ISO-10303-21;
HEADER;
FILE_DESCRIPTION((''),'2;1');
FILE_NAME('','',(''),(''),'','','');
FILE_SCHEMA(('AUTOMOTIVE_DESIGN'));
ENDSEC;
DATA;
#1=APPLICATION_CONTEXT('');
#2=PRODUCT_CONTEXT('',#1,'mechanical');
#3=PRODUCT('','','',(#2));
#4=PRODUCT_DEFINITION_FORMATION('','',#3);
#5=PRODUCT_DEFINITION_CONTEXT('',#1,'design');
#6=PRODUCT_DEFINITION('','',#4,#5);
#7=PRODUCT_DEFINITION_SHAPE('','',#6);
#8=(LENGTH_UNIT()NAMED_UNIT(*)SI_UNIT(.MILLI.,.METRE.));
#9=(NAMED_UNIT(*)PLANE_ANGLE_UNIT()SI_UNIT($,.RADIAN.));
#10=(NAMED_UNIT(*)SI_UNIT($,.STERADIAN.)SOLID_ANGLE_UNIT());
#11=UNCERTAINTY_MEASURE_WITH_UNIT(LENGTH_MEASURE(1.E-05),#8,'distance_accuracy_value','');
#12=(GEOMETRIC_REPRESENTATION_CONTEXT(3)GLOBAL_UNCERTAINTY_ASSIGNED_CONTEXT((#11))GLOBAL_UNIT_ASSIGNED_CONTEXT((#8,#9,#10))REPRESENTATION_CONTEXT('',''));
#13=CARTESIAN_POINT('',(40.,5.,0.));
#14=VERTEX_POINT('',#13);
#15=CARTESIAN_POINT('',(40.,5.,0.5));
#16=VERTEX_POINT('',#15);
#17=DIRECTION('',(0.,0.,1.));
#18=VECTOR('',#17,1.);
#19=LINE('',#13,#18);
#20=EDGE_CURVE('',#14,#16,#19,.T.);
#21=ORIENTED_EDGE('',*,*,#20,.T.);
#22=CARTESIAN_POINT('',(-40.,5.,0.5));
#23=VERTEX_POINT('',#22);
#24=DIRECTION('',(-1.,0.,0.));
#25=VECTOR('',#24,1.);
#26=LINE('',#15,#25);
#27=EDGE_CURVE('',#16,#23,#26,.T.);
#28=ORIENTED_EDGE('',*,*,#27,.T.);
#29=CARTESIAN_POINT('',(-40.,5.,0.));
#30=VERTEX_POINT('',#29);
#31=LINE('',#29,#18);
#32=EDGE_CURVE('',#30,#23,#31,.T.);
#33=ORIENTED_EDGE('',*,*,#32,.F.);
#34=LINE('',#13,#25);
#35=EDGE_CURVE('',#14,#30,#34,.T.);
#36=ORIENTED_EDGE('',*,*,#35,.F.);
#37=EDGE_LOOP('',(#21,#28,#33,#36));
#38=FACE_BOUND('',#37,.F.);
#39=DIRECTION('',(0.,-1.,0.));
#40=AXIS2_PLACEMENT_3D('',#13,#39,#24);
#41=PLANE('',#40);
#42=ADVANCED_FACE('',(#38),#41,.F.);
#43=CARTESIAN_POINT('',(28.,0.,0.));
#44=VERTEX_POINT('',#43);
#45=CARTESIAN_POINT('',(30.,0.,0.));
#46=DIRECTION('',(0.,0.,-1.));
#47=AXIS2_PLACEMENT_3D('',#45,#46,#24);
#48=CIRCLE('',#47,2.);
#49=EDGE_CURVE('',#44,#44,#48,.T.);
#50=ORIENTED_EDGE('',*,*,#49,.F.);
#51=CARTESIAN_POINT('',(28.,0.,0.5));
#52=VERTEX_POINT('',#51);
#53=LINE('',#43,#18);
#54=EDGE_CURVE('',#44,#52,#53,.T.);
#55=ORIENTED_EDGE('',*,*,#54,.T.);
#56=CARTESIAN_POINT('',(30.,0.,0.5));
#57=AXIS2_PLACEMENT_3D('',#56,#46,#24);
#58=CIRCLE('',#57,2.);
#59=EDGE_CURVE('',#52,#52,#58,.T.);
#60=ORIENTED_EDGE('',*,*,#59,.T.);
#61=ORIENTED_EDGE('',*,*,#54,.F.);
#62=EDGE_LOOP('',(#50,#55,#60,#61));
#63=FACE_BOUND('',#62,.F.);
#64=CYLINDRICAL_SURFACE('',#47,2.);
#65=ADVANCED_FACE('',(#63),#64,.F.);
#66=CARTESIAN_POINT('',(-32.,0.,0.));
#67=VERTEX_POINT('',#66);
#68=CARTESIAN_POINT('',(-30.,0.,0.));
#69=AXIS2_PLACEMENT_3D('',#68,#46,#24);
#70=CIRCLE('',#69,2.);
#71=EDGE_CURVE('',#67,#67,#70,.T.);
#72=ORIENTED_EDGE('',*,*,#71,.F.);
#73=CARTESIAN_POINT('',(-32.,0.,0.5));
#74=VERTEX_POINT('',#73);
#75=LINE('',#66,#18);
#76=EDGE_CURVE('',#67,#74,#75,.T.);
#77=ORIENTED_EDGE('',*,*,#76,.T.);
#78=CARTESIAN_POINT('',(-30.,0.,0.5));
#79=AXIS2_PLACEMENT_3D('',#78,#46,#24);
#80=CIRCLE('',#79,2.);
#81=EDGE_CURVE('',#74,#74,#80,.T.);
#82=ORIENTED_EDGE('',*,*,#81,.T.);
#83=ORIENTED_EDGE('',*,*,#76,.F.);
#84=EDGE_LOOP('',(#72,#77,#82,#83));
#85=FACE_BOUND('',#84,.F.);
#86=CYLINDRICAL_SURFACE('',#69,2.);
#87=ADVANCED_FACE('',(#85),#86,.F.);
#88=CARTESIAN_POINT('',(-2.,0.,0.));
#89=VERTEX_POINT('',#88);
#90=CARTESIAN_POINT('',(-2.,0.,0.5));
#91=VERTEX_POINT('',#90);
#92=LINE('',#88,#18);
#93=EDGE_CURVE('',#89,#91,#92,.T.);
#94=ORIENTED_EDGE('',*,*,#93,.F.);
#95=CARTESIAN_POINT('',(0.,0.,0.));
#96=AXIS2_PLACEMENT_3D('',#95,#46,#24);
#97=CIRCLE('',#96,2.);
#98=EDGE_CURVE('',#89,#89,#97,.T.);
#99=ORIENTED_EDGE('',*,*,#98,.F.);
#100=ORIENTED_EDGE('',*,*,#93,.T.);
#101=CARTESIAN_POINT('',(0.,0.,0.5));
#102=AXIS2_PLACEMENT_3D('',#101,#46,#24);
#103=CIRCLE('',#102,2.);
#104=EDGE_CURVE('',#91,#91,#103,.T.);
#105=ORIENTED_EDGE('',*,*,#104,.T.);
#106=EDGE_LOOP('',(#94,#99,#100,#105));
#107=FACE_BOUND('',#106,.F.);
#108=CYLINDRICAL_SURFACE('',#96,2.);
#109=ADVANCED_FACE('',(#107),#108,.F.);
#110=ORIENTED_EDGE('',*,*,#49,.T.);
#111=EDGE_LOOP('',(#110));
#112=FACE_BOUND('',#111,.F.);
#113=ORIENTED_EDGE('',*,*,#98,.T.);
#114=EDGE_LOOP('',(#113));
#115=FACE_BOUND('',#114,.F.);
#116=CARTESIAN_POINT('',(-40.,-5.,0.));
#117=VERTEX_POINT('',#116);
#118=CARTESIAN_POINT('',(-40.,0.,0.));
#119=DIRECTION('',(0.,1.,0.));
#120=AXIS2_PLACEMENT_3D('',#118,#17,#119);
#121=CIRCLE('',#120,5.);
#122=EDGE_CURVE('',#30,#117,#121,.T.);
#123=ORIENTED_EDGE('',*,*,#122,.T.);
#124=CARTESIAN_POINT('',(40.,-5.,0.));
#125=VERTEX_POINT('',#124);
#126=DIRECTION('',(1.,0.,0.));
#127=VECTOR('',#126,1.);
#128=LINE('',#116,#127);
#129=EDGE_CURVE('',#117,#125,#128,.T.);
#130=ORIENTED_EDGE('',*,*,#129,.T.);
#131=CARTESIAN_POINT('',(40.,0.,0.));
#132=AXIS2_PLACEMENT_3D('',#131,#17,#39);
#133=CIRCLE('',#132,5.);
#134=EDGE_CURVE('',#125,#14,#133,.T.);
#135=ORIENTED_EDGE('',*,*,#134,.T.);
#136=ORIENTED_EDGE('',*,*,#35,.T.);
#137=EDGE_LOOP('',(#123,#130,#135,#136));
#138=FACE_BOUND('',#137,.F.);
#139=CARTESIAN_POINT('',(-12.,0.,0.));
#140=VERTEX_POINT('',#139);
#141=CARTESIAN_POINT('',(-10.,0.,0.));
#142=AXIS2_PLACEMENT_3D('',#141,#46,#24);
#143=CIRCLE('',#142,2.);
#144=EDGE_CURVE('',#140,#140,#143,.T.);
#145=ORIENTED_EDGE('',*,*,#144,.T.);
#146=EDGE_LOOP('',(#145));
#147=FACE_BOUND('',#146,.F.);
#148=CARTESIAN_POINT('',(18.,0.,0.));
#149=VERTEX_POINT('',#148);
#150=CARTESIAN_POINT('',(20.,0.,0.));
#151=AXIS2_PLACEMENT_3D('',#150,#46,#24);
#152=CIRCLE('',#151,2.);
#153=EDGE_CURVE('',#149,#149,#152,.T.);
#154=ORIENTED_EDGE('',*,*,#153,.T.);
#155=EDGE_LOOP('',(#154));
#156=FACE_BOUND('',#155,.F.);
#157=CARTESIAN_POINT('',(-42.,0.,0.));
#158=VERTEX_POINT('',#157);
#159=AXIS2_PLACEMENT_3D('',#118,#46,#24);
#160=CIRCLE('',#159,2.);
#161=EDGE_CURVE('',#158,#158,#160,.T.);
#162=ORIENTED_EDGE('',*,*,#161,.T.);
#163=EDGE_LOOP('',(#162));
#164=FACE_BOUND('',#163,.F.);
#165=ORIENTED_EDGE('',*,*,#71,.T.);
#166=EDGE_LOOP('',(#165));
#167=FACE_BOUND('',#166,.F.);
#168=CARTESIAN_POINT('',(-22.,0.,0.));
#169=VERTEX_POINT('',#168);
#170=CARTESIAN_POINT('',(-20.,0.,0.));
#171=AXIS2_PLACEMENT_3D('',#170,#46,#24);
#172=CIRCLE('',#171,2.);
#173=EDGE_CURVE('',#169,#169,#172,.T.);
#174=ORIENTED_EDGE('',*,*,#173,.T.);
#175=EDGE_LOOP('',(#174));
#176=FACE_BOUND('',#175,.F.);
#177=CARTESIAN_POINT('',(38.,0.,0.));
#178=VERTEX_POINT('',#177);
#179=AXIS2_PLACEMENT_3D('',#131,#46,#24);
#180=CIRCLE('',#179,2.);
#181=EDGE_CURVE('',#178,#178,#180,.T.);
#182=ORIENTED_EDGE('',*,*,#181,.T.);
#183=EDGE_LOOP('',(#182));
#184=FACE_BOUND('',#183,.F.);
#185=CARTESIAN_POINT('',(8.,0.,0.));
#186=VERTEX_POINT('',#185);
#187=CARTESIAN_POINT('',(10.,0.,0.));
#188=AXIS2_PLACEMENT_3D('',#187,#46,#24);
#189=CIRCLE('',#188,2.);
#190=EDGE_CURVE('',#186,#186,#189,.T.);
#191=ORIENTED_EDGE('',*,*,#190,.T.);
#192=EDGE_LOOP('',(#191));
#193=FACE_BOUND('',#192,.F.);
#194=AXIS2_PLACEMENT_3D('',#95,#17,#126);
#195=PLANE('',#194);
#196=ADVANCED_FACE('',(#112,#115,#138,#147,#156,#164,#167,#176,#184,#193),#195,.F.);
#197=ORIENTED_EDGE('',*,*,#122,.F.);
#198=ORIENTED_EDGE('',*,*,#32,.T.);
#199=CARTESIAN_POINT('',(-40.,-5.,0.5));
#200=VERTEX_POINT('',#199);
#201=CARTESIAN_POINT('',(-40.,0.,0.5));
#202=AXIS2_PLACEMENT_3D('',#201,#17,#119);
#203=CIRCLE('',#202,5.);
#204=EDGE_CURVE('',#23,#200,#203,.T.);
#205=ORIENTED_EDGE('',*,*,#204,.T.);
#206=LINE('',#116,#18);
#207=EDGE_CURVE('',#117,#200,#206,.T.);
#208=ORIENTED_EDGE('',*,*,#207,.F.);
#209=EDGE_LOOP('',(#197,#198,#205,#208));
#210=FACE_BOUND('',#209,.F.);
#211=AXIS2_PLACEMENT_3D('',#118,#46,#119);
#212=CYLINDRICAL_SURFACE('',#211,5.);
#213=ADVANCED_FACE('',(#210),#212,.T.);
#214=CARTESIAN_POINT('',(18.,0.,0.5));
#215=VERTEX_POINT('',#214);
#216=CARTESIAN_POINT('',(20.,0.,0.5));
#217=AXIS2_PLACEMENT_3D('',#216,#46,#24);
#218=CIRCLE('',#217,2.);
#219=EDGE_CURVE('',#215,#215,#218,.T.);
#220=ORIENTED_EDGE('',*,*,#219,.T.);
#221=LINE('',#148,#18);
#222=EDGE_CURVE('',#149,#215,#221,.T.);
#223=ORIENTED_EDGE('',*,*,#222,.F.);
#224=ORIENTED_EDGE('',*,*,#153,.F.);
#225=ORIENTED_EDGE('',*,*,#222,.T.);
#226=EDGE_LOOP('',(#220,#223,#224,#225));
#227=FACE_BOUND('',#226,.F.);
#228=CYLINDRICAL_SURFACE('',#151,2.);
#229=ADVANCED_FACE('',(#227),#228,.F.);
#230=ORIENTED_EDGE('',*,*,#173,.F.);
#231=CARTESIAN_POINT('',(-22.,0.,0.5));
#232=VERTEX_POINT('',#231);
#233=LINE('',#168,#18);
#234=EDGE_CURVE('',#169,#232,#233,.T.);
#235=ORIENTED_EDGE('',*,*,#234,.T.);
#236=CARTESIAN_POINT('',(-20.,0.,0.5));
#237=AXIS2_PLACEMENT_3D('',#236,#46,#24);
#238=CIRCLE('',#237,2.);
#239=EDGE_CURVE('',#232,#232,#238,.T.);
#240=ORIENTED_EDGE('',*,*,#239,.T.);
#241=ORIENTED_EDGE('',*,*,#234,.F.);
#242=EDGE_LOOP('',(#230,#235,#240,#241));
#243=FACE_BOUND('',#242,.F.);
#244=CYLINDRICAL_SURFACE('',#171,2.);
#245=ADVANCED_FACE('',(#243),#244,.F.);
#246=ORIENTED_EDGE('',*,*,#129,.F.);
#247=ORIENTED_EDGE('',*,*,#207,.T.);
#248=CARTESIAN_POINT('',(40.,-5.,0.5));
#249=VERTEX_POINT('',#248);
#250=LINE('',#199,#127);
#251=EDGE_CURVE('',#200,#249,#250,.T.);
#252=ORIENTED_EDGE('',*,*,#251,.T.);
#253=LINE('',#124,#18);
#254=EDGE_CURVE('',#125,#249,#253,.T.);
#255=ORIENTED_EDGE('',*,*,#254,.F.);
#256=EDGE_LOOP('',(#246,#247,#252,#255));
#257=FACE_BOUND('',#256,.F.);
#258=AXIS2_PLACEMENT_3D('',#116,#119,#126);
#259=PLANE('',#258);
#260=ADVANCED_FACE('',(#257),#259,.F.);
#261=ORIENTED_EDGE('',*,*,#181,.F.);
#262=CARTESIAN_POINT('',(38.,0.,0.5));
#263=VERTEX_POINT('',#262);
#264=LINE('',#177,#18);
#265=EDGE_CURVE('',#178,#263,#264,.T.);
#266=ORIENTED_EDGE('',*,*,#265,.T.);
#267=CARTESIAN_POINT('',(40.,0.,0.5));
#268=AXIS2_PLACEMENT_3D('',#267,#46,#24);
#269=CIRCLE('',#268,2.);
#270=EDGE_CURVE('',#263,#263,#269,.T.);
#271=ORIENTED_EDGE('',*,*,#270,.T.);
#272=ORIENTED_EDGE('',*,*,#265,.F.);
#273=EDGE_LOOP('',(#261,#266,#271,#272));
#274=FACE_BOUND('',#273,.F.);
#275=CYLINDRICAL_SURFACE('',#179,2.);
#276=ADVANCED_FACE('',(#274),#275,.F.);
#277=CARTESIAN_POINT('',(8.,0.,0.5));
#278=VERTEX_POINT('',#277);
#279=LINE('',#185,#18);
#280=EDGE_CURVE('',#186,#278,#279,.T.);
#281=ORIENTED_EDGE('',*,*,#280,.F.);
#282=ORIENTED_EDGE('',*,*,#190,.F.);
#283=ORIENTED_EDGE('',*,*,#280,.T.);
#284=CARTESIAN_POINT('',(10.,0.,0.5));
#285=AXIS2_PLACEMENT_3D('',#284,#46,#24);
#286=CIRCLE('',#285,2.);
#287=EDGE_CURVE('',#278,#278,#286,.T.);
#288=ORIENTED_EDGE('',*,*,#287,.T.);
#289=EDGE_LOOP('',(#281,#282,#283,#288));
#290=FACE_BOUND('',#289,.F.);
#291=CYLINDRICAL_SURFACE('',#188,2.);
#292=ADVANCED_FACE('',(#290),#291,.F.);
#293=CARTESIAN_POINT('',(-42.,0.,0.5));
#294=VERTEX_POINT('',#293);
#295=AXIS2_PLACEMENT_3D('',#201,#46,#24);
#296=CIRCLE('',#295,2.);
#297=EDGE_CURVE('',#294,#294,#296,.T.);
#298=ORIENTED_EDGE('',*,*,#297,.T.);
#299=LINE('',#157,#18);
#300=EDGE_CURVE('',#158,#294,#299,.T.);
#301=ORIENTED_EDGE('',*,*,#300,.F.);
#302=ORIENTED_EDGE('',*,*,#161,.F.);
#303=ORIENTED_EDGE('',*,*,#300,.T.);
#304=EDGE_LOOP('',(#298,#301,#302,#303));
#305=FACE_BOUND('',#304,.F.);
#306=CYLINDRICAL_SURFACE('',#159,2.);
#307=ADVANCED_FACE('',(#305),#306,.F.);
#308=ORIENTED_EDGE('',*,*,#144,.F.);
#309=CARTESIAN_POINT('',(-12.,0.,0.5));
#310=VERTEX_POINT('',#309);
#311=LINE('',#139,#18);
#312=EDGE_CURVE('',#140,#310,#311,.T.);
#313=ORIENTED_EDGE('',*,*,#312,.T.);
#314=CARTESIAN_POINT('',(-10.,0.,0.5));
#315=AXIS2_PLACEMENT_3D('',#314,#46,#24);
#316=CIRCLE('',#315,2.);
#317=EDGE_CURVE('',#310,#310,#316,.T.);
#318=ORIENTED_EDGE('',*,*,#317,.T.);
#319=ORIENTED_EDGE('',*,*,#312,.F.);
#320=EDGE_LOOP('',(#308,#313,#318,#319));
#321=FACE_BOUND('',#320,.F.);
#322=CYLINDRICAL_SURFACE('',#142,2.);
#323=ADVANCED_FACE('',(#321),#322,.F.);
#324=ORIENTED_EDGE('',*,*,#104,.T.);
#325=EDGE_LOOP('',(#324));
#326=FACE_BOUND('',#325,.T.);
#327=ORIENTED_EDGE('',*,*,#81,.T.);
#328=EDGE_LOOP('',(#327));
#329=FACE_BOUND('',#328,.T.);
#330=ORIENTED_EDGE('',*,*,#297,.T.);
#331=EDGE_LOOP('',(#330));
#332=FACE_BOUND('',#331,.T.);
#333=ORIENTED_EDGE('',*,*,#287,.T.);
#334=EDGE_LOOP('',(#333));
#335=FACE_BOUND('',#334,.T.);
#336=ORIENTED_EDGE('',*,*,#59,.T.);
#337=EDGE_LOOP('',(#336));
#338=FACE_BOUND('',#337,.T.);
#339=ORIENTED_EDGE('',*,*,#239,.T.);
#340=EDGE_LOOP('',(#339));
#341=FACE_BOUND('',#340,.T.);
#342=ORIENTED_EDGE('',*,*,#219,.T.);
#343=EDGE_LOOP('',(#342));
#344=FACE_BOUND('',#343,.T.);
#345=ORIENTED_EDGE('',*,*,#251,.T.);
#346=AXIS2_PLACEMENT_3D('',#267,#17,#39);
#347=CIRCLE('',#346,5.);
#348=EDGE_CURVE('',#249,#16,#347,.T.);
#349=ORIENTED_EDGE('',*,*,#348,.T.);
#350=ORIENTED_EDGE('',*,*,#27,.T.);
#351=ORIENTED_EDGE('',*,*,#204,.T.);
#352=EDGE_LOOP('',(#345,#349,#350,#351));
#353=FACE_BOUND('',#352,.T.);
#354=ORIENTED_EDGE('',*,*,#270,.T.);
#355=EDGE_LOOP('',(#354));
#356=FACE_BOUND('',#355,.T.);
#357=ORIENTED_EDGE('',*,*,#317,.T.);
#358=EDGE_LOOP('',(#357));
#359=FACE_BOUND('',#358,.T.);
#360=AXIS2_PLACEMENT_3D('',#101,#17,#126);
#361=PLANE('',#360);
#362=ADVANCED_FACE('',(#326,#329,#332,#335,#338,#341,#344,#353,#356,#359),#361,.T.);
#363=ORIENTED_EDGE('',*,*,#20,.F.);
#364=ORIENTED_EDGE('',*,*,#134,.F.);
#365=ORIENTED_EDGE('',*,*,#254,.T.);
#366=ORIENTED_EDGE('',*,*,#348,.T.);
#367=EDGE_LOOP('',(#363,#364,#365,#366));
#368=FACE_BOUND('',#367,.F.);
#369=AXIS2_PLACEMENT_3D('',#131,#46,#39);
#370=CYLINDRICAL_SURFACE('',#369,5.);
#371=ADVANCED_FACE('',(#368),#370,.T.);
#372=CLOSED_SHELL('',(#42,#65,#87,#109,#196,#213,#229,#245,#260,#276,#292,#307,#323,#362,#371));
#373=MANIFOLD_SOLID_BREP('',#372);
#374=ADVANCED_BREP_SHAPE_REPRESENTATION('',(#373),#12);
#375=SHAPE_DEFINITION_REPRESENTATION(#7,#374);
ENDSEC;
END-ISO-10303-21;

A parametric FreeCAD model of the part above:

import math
import FreeCAD as App
import Part
import Sketcher

V = App.Vector
Q = App.Units.Quantity

doc = App.newDocument("Part")
body = doc.addObject("PartDesign::Body", "Body")

# Sketch on XY plane
sketch1 = body.newObject("Sketcher::SketchObject", "Sketch")
sketch1.AttachmentSupport = (doc.getObject("XY_Plane"), [""])
sketch1.MapMode = "FlatFace"
sketch1.addGeometry([
    Part.ArcOfCircle(Part.Circle(V(-40, 0, 0), V(0, 0, 1), 5), math.radians(90), math.radians(270)),
    Part.LineSegment(V(-40, -5, 0), V(40, -5, 0)),
    Part.ArcOfCircle(Part.Circle(V(40, 0, 0), V(0, 0, 1), 5), math.radians(-90), math.radians(90)),
    Part.LineSegment(V(40, 5, 0), V(-40, 5, 0)),
], False)
sketch1.addConstraint([
    Sketcher.Constraint("Tangent", 0, 2, 1, 1),
    Sketcher.Constraint("Tangent", 1, 2, 2, 1),
    Sketcher.Constraint("Tangent", 2, 2, 3, 1),
    Sketcher.Constraint("Tangent", 3, 2, 0, 1),
    Sketcher.Constraint("Horizontal", 1),
    Sketcher.Constraint("Horizontal", 3),
    Sketcher.Constraint("Symmetric", 0, 3, 2, 3, -1, 1),
    Sketcher.Constraint("Radius", 0, Q("5 mm")),
    Sketcher.Constraint("DistanceX", 1, 1, 1, 2, Q("80 mm")),
])
pad1 = body.newObject("PartDesign::Pad", "Pad")
pad1.Profile = sketch1
pad1.Length = 0.5

# Sketch on XY plane
sketch2 = body.newObject("Sketcher::SketchObject", "Sketch001")
sketch2.AttachmentSupport = (doc.getObject("XY_Plane"), [""])
sketch2.MapMode = "FlatFace"
sketch2.addGeometry(Part.Circle(V(-40, 0, 0), V(0, 0, 1), 2), False)
sketch2.addConstraint([
    Sketcher.Constraint("PointOnObject", 0, 3, -1),
    Sketcher.Constraint("Diameter", 0, Q("4 mm")),
    Sketcher.Constraint("DistanceX", 0, 3, -1, 1, Q("40 mm")),
])
pocket1 = body.newObject("PartDesign::Pocket", "Pocket")
pocket1.Profile = sketch2
pocket1.Type = "ThroughAll"
pocket1.Reversed = True
doc.recompute()

linearpattern = body.newObject("PartDesign::LinearPattern", "LinearPattern")
linearpattern.Originals = [pocket1]
linearpattern.Direction = (doc.getObject("X_Axis"), [""])
linearpattern.Mode = "offset"
linearpattern.Offset = 10
linearpattern.Occurrences = 9
body.Tip = linearpattern

doc.recompute()
